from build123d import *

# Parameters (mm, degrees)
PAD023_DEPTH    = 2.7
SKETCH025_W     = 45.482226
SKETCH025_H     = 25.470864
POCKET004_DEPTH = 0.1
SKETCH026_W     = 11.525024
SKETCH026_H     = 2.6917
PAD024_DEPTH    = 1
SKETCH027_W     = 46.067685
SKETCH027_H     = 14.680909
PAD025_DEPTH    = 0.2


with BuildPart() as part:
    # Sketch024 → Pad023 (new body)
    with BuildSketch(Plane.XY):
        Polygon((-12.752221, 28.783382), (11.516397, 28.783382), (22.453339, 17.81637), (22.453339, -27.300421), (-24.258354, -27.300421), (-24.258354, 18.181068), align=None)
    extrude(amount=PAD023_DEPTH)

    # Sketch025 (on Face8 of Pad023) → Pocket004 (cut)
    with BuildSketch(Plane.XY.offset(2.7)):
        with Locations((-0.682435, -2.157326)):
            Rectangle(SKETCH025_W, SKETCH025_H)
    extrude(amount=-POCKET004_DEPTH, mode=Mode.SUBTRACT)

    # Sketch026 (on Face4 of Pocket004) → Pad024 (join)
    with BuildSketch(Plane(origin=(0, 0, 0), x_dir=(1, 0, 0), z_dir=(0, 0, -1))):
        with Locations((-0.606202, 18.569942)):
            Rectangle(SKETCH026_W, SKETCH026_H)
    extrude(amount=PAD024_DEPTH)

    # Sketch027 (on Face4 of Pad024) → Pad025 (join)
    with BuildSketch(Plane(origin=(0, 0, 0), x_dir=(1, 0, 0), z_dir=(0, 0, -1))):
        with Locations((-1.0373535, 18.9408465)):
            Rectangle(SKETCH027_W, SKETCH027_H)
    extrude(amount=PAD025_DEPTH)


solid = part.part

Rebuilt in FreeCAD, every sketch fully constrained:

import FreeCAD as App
import Part
import Sketcher
from FreeCAD import Vector

doc = App.newDocument("Part")
body = doc.addObject("PartDesign::Body", "Body")

sketch1 = body.newObject("Sketcher::SketchObject", "Sketch")
sketch1.AttachmentSupport = (doc.getObject("XY_Plane"), [""])
sketch1.MapMode = "FlatFace"
sketch1.addGeometry([
    Part.LineSegment(Vector(12, 29, 0), Vector(-13, 29, 0)),
    Part.LineSegment(Vector(-13, 29, 0), Vector(-24, 18, 0)),
    Part.LineSegment(Vector(-24, 18, 0), Vector(-24, -27, 0)),
    Part.LineSegment(Vector(-24, -27, 0), Vector(22, -27, 0)),
    Part.LineSegment(Vector(22, -27, 0), Vector(22, 18, 0)),
    Part.LineSegment(Vector(22, 18, 0), Vector(12, 29, 0)),
], False)
sketch1.addConstraint([
    Sketcher.Constraint("Coincident", 0, 2, 1, 1),
    Sketcher.Constraint("Coincident", 1, 2, 2, 1),
    Sketcher.Constraint("Coincident", 2, 2, 3, 1),
    Sketcher.Constraint("Coincident", 3, 2, 4, 1),
    Sketcher.Constraint("Coincident", 4, 2, 5, 1),
    Sketcher.Constraint("Coincident", 5, 2, 0, 1),
    Sketcher.Constraint("Horizontal", 0),
    Sketcher.Constraint("Vertical", 2),
    Sketcher.Constraint("Horizontal", 3),
    Sketcher.Constraint("Vertical", 4),
    Sketcher.Constraint("DistanceX", 0, 2, 0, 1, 24.268618),
    Sketcher.Constraint("DistanceY", 2, 2, 2, 1, 45.481489),
    Sketcher.Constraint("DistanceY", 4, 1, 4, 2, 45.116791),
    Sketcher.Constraint("Distance", 1, 15.646091),
    Sketcher.Constraint("Distance", 5, 15.488449),
    Sketcher.Constraint("DistanceX", 3, 1, 3, 2, 46.711693),
    Sketcher.Constraint("DistanceX", 0, 2, -1, 1, 12.752221),
    Sketcher.Constraint("DistanceY", -1, 1, 0, 2, 28.783382),
])
pad1 = body.newObject("PartDesign::Pad", "Pad")
pad1.Profile = sketch1
pad1.Length = 2.7

sketch2 = body.newObject("Sketcher::SketchObject", "Sketch001")
sketch2.AttachmentSupport = (doc.getObject("XY_Plane"), [""])
sketch2.MapMode = "FlatFace"
sketch2.AttachmentOffset = App.Placement(Vector(0, 0, 2.7), App.Rotation())
sketch2.addGeometry([
    Part.LineSegment(Vector(-23, 11, 0), Vector(-23, -15, 0)),
    Part.LineSegment(Vector(-23, -15, 0), Vector(22, -15, 0)),
    Part.LineSegment(Vector(22, -15, 0), Vector(22, 11, 0)),
    Part.LineSegment(Vector(22, 11, 0), Vector(-23, 11, 0)),
], False)
sketch2.addConstraint([
    Sketcher.Constraint("Coincident", 0, 2, 1, 1),
    Sketcher.Constraint("Coincident", 1, 2, 2, 1),
    Sketcher.Constraint("Coincident", 2, 2, 3, 1),
    Sketcher.Constraint("Coincident", 3, 2, 0, 1),
    Sketcher.Constraint("Vertical", 0),
    Sketcher.Constraint("Horizontal", 1),
    Sketcher.Constraint("Vertical", 2),
    Sketcher.Constraint("Horizontal", 3),
    Sketcher.Constraint("DistanceX", 1, 1, 1, 2, 45.482226),
    Sketcher.Constraint("DistanceY", 0, 2, 0, 1, 25.470864),
    Sketcher.Constraint("DistanceX", 0, 2, -1, 1, 23.423548),
    Sketcher.Constraint("DistanceY", 0, 2, -1, 1, 14.892758),
])
pocket1 = body.newObject("PartDesign::Pocket", "Pocket")
pocket1.Profile = sketch2
pocket1.Length = 0.1

sketch3 = body.newObject("Sketcher::SketchObject", "Sketch002")
sketch3.AttachmentSupport = (doc.getObject("XY_Plane"), [""])
sketch3.MapMode = "FlatFace"
sketch3.addGeometry([
    Part.LineSegment(Vector(-6.4, -19.9, 0), Vector(-6.4, -17.2, 0)),
    Part.LineSegment(Vector(-6.4, -17.2, 0), Vector(5.2, -17.2, 0)),
    Part.LineSegment(Vector(5.2, -17.2, 0), Vector(5.2, -19.9, 0)),
    Part.LineSegment(Vector(5.2, -19.9, 0), Vector(-6.4, -19.9, 0)),
], False)
sketch3.addConstraint([
    Sketcher.Constraint("Coincident", 0, 2, 1, 1),
    Sketcher.Constraint("Coincident", 1, 2, 2, 1),
    Sketcher.Constraint("Coincident", 2, 2, 3, 1),
    Sketcher.Constraint("Coincident", 3, 2, 0, 1),
    Sketcher.Constraint("Vertical", 0),
    Sketcher.Constraint("Horizontal", 1),
    Sketcher.Constraint("Vertical", 2),
    Sketcher.Constraint("Horizontal", 3),
    Sketcher.Constraint("DistanceY", 0, 1, 0, 2, 2.6917),
    Sketcher.Constraint("DistanceX", 1, 1, 1, 2, 11.525024),
    Sketcher.Constraint("DistanceY", 0, 2, -1, 1, 17.224092),
    Sketcher.Constraint("DistanceX", -1, 1, 1, 2, 5.15631),
])
pad2 = body.newObject("PartDesign::Pad", "Pad001")
pad2.Profile = sketch3
pad2.Length = 1
pad2.Reversed = True

sketch4 = body.newObject("Sketcher::SketchObject", "Sketch003")
sketch4.AttachmentSupport = (doc.getObject("XY_Plane"), [""])
sketch4.MapMode = "FlatFace"
sketch4.addGeometry([
    Part.LineSegment(Vector(-24, -26, 0), Vector(-24, -12, 0)),
    Part.LineSegment(Vector(-24, -12, 0), Vector(22, -12, 0)),
    Part.LineSegment(Vector(22, -12, 0), Vector(22, -26, 0)),
    Part.LineSegment(Vector(22, -26, 0), Vector(-24, -26, 0)),
], False)
sketch4.addConstraint([
    Sketcher.Constraint("Coincident", 0, 2, 1, 1),
    Sketcher.Constraint("Coincident", 1, 2, 2, 1),
    Sketcher.Constraint("Coincident", 2, 2, 3, 1),
    Sketcher.Constraint("Coincident", 3, 2, 0, 1),
    Sketcher.Constraint("Vertical", 0),
    Sketcher.Constraint("Horizontal", 1),
    Sketcher.Constraint("Vertical", 2),
    Sketcher.Constraint("Horizontal", 3),
    Sketcher.Constraint("DistanceY", 0, 1, 0, 2, 14.680909),
    Sketcher.Constraint("DistanceY", 2, 2, -1, 1, 26.281301),
    Sketcher.Constraint("DistanceX", 1, 1, 1, 2, 46.067685),
    Sketcher.Constraint("DistanceX", -1, 1, 1, 2, 21.996489),
])
pad3 = body.newObject("PartDesign::Pad", "Pad002")
pad3.Profile = sketch4
pad3.Length = 0.2
pad3.Reversed = True

doc.recompute()
